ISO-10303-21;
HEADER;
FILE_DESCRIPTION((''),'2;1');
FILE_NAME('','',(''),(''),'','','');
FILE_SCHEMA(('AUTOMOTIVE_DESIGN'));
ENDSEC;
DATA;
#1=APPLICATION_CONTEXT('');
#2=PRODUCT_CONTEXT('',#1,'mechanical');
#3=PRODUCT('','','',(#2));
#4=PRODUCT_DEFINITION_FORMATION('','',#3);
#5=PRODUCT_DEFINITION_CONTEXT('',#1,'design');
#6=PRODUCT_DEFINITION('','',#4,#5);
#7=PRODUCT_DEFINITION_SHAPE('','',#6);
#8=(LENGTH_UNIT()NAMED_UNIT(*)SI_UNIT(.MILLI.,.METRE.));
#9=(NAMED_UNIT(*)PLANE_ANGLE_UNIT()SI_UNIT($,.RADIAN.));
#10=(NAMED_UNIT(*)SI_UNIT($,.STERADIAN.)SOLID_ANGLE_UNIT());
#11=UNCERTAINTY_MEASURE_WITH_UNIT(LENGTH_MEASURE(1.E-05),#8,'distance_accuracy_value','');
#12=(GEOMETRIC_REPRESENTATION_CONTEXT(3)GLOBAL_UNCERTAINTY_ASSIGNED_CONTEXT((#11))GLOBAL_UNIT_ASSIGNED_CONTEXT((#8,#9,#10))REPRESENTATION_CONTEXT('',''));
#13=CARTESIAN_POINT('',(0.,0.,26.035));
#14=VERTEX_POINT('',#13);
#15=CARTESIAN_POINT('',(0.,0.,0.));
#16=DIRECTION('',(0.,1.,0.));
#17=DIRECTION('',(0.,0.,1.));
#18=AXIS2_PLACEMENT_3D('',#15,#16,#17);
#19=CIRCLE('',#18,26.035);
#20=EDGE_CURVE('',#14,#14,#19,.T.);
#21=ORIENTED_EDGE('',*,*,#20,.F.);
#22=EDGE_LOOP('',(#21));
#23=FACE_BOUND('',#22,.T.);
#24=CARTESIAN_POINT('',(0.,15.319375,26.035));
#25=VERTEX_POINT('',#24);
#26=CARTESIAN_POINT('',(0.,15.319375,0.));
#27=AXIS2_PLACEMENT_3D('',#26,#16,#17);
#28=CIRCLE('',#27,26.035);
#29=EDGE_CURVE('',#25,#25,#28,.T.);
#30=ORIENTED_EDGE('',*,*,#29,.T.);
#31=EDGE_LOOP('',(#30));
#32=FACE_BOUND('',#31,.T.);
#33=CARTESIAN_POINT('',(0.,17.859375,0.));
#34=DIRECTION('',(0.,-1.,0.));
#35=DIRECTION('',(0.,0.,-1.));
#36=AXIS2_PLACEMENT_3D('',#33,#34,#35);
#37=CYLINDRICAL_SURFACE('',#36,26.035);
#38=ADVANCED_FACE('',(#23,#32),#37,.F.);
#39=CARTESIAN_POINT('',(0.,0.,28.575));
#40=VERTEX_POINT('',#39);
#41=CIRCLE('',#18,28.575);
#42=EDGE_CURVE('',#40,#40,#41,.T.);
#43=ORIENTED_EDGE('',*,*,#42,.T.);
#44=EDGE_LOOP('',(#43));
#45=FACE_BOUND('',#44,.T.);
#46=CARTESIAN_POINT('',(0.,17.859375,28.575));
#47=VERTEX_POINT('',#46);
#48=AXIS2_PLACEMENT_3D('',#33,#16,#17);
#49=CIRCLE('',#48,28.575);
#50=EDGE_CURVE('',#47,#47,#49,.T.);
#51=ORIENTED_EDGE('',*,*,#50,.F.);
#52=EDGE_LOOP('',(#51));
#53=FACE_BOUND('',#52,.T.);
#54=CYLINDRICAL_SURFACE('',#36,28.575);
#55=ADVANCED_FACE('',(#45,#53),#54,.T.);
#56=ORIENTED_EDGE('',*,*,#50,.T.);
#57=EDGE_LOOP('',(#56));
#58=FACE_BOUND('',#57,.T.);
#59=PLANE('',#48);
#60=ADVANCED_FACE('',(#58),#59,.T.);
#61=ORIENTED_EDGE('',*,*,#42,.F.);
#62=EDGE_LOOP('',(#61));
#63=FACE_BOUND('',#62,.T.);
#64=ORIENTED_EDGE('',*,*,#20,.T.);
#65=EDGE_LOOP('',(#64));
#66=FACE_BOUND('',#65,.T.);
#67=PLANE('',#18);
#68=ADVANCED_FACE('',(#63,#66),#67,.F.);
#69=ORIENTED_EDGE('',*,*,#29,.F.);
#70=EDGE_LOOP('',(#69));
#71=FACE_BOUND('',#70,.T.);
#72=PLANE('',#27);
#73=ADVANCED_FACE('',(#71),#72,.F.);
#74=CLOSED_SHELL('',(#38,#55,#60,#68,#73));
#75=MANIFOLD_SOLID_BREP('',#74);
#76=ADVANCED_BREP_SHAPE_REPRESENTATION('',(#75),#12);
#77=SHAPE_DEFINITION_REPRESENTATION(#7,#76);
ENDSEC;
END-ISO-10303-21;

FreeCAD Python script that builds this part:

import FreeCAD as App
import Part
import Sketcher

V = App.Vector
Q = App.Units.Quantity


def faces_at(feature, points):
    """Names of the faces that lie closest to the given points."""
    faces = feature.Shape.Faces
    near = lambda p: min(range(len(faces)), key=lambda i: faces[i].distToShape(Part.Vertex(*p))[0])
    return sorted({f"Face{near(p) + 1}" for p in points})

doc = App.newDocument("Part")
body = doc.addObject("PartDesign::Body", "Body")

# Sketch on XZ plane
sketch1 = body.newObject("Sketcher::SketchObject", "Sketch")
sketch1.AttachmentSupport = (doc.getObject("XZ_Plane"), [""])
sketch1.MapMode = "FlatFace"
sketch1.addGeometry(Part.Circle(V(0, 0, 0), V(0, 0, 1), 28.575), False)
sketch1.addConstraint([
    Sketcher.Constraint("Coincident", 0, 3, -1, 1),
    Sketcher.Constraint("Diameter", 0, Q("2.25 in")),
])
pad1 = body.newObject("PartDesign::Pad", "Pad")
pad1.Profile = sketch1
pad1.Length = Q("0.703125 in")
pad1.Reversed = True
doc.recompute()

thickness = body.newObject("PartDesign::Thickness", "Thickness")
thickness.Base = (pad1, faces_at(pad1, [(0, 0, 0)]))
thickness.Value = Q("0.1 in")
thickness.Reversed = True
thickness.Join = "Intersection"

doc.recompute()
